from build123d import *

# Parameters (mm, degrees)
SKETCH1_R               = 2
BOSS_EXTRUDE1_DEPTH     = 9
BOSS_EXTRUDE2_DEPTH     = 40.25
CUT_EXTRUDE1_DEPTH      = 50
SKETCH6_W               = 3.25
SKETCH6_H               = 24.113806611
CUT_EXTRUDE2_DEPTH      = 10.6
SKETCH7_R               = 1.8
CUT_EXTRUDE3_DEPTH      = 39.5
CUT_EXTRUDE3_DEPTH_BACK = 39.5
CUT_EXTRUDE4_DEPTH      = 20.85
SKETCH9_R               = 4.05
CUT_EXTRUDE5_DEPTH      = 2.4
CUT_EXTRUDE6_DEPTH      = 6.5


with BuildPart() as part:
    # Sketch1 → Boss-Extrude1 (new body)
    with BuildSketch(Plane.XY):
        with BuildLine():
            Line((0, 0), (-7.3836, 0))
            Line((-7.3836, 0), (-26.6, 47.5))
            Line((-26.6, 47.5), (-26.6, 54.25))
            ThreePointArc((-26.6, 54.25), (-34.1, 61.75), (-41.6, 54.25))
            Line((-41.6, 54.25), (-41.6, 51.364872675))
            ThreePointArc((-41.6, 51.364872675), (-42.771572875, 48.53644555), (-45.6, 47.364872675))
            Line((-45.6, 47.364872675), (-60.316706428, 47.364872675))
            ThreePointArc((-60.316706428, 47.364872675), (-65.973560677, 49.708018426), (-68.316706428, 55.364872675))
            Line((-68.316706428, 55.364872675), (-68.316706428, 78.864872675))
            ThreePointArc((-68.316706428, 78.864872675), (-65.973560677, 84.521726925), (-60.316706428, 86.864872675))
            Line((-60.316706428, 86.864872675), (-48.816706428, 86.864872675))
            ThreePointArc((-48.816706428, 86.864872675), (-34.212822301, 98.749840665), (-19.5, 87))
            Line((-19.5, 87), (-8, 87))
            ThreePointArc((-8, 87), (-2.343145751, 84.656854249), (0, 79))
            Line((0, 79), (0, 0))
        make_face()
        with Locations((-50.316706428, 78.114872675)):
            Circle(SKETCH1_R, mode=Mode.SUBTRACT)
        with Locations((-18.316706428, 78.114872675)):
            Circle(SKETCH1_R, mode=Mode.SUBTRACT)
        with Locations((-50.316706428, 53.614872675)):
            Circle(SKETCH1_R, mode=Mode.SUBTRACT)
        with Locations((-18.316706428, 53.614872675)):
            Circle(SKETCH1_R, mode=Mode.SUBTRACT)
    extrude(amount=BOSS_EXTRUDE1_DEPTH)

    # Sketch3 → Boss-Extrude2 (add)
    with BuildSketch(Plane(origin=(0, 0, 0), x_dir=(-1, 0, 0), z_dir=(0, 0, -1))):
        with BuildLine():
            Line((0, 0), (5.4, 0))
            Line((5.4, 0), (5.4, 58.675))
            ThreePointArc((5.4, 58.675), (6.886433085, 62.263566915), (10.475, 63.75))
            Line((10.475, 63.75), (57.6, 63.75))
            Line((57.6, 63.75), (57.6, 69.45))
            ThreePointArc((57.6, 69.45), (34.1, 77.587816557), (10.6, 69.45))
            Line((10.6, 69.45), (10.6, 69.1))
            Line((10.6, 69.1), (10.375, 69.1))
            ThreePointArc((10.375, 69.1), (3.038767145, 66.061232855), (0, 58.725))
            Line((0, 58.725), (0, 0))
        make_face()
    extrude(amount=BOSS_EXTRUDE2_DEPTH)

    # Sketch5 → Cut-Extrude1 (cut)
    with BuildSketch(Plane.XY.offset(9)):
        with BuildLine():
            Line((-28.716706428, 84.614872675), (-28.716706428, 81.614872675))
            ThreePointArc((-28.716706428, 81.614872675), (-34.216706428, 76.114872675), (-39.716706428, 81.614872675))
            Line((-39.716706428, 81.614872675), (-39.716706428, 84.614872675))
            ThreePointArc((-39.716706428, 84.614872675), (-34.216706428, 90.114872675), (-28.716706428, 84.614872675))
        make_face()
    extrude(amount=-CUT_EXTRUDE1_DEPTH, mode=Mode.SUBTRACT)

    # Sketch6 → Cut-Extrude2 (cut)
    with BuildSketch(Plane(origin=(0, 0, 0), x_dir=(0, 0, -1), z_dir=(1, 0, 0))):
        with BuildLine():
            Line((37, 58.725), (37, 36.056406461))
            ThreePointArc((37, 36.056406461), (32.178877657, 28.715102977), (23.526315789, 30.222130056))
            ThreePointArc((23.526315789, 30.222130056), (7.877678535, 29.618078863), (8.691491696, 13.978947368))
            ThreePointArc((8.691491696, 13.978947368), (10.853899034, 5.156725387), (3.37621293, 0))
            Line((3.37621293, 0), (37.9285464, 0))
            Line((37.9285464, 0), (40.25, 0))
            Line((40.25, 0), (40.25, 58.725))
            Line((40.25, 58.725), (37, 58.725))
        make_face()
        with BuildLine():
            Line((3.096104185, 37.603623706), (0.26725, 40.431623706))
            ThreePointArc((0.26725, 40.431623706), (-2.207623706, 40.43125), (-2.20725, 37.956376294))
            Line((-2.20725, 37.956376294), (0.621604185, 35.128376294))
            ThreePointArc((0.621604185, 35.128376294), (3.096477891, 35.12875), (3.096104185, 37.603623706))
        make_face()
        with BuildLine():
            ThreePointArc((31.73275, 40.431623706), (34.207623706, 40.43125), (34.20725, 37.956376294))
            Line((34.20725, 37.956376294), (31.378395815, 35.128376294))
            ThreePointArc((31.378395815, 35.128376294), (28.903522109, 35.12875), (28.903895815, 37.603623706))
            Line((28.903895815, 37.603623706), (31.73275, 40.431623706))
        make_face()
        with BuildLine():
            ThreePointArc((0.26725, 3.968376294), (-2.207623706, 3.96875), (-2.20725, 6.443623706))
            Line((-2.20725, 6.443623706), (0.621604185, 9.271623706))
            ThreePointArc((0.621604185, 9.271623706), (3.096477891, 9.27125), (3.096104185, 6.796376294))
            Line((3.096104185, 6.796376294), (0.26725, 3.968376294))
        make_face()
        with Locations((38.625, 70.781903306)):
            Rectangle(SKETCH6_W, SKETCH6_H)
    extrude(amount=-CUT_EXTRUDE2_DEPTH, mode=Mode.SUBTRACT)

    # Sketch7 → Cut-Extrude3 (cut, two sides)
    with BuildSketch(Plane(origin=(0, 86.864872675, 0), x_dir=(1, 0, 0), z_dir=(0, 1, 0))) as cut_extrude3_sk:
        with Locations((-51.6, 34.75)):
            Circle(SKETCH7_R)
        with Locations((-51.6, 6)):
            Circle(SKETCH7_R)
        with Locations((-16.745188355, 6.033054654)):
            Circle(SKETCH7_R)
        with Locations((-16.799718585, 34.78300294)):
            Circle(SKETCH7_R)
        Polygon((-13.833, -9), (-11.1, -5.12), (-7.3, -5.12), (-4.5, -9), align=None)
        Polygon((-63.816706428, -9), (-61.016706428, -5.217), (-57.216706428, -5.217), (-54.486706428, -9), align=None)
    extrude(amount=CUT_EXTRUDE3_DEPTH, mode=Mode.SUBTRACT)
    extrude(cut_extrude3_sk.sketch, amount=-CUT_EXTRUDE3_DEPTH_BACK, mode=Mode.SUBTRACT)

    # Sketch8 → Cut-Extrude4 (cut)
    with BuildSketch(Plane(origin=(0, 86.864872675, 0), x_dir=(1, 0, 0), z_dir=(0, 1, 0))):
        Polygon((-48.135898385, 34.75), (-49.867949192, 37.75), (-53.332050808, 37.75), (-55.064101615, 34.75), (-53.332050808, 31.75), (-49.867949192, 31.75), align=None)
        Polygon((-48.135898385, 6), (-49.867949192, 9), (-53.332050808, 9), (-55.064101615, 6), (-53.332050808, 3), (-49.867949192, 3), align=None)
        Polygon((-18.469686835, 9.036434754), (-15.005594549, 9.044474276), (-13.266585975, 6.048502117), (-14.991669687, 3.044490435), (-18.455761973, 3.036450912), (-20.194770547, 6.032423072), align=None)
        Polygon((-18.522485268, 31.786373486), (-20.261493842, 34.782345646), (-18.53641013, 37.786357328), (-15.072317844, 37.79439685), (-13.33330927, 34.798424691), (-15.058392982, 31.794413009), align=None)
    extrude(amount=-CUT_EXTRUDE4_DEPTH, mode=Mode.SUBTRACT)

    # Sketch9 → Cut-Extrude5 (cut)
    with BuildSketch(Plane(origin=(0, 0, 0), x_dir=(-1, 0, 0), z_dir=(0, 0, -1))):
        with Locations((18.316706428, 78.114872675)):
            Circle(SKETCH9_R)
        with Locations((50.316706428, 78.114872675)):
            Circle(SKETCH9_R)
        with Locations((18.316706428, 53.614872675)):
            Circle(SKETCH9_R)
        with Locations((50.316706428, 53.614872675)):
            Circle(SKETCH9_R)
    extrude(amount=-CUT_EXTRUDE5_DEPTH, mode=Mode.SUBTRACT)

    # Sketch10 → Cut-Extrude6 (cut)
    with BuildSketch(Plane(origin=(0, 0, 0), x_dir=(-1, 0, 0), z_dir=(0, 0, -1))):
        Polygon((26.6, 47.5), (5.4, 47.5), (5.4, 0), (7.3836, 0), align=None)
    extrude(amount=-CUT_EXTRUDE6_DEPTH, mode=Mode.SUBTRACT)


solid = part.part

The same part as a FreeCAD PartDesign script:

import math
import FreeCAD as App
import Part
import Sketcher

V = App.Vector
Q = App.Units.Quantity


def add_polygon(sketch, points):
    """Adds a closed chain of lines whose ends are joined by coincident constraints."""
    first, n = sketch.GeometryCount, len(points)
    for a, b in zip(points, points[1:] + points[:1]):
        sketch.addGeometry(Part.LineSegment(App.Vector(*a, 0), App.Vector(*b, 0)), False)
    for i in range(n):
        sketch.addConstraint(Sketcher.Constraint("Coincident", first + i, 2, first + (i + 1) % n, 1))

doc = App.newDocument("Part")
body = doc.addObject("PartDesign::Body", "Body")

sketch1 = body.newObject("Sketcher::SketchObject", "Sketch")
sketch1.AttachmentSupport = (doc.getObject("XY_Plane"), [""])
sketch1.MapMode = "FlatFace"
sketch1.addGeometry(Part.LineSegment(V(-7.3836, 0, 0), V(0, 0, 0)), False)
sketch1.addGeometry(Part.LineSegment(V(0, 0, 0), V(0, 79, 0)), False)
sketch1.addGeometry(Part.ArcOfCircle(Part.Circle(V(-8, 79, 0), V(0, 0, 1), 8), math.radians(0), math.radians(90)), False)
sketch1.addGeometry(Part.LineSegment(V(-8, 87, 0), V(-19.5, 87, 0)), False)
sketch1.addGeometry(Part.ArcOfCircle(Part.Circle(V(-34.143685, 83.75, 0), V(0, 0, 1), 15), math.radians(12.513325), math.radians(168.014849)), False)
sketch1.addGeometry(Part.LineSegment(V(-48.816706, 86.864873, 0), V(-60.316706, 86.864873, 0)), False)
sketch1.addGeometry(Part.ArcOfCircle(Part.Circle(V(-60.316706, 78.864873, 0), V(0, 0, 1), 8), math.radians(90), math.radians(180)), False)
sketch1.addGeometry(Part.LineSegment(V(-68.316706, 78.864873, 0), V(-68.316706, 55.364873, 0)), False)
sketch1.addGeometry(Part.ArcOfCircle(Part.Circle(V(-60.316706, 55.364873, 0), V(0, 0, 1), 8), math.radians(-180), math.radians(-90)), False)
sketch1.addGeometry(Part.LineSegment(V(-60.316706, 47.364873, 0), V(-45.6, 47.364873, 0)), False)
sketch1.addGeometry(Part.ArcOfCircle(Part.Circle(V(-45.6, 51.364873, 0), V(0, 0, 1), 4), math.radians(-90), math.radians(0)), False)
sketch1.addGeometry(Part.LineSegment(V(-41.6, 51.364873, 0), V(-41.6, 54.25, 0)), False)
sketch1.addGeometry(Part.ArcOfCircle(Part.Circle(V(-34.1, 54.25, 0), V(0, 0, 1), 7.5), math.radians(0), math.radians(180)), False)
sketch1.addGeometry(Part.LineSegment(V(-26.6, 54.25, 0), V(-26.6, 47.5, 0)), False)
sketch1.addGeometry(Part.LineSegment(V(-26.6, 47.5, 0), V(-7.3836, 0, 0)), False)
sketch1.addGeometry(Part.Circle(V(-18.316706, 53.614873, 0), V(0, 0, 1), 2), False)
sketch1.addGeometry(Part.Circle(V(-50.316706, 53.614873, 0), V(0, 0, 1), 2), False)
sketch1.addGeometry(Part.Circle(V(-18.316706, 78.114873, 0), V(0, 0, 1), 2), False)
sketch1.addGeometry(Part.Circle(V(-50.316706, 78.114873, 0), V(0, 0, 1), 2), False)
sketch1.addConstraint(Sketcher.Constraint("Coincident", 0, 2, 1, 1))
sketch1.addConstraint(Sketcher.Constraint("Tangent", 1, 2, 2, 1))
sketch1.addConstraint(Sketcher.Constraint("Tangent", 2, 2, 3, 1))
sketch1.addConstraint(Sketcher.Constraint("Coincident", 3, 2, 4, 1))
sketch1.addConstraint(Sketcher.Constraint("Coincident", 4, 2, 5, 1))
sketch1.addConstraint(Sketcher.Constraint("Tangent", 5, 2, 6, 1))
sketch1.addConstraint(Sketcher.Constraint("Tangent", 6, 2, 7, 1))
sketch1.addConstraint(Sketcher.Constraint("Tangent", 7, 2, 8, 1))
sketch1.addConstraint(Sketcher.Constraint("Tangent", 8, 2, 9, 1))
sketch1.addConstraint(Sketcher.Constraint("Tangent", 9, 2, 10, 1))
sketch1.addConstraint(Sketcher.Constraint("Tangent", 10, 2, 11, 1))
sketch1.addConstraint(Sketcher.Constraint("Tangent", 11, 2, 12, 2))
sketch1.addConstraint(Sketcher.Constraint("Tangent", 12, 1, 13, 1))
sketch1.addConstraint(Sketcher.Constraint("Coincident", 13, 2, 14, 1))
sketch1.addConstraint(Sketcher.Constraint("Coincident", 14, 2, 0, 1))
sketch1.addConstraint(Sketcher.Constraint("Horizontal", 0))
sketch1.addConstraint(Sketcher.Constraint("Vertical", 1))
sketch1.addConstraint(Sketcher.Constraint("Horizontal", 3))
sketch1.addConstraint(Sketcher.Constraint("Horizontal", 5))
sketch1.addConstraint(Sketcher.Constraint("Vertical", 7))
sketch1.addConstraint(Sketcher.Constraint("Horizontal", 9))
sketch1.addConstraint(Sketcher.Constraint("Vertical", 11))
sketch1.addConstraint(Sketcher.Constraint("Vertical", 13))
sketch1.addConstraint(Sketcher.Constraint("Coincident", 0, 2, -1, 1))
sketch1.addConstraint(Sketcher.Constraint("Equal", 2, 6))
sketch1.addConstraint(Sketcher.Constraint("Equal", 6, 8))
sketch1.addConstraint(Sketcher.Constraint("Equal", 15, 16))
sketch1.addConstraint(Sketcher.Constraint("Equal", 16, 17))
sketch1.addConstraint(Sketcher.Constraint("Equal", 17, 18))
sketch1.addConstraint(Sketcher.Constraint("Horizontal", 15, 3, 16, 3))
sketch1.addConstraint(Sketcher.Constraint("Horizontal", 17, 3, 18, 3))
sketch1.addConstraint(Sketcher.Constraint("Vertical", 15, 3, 17, 3))
sketch1.addConstraint(Sketcher.Constraint("Vertical", 16, 3, 18, 3))
sketch1.addConstraint(Sketcher.Constraint("Equal", 3, 5))
sketch1.addConstraint(Sketcher.Constraint("Diameter", 15, 4.0))
sketch1.addConstraint(Sketcher.Constraint("Radius", 2, 8.0))
sketch1.addConstraint(Sketcher.Constraint("Radius", 4, 15.0))
sketch1.addConstraint(Sketcher.Constraint("Radius", 10, 4.0))
sketch1.addConstraint(Sketcher.Constraint("Radius", 12, 7.5))
sketch1.addConstraint(Sketcher.Constraint("DistanceY", 1, 1, 1, 2, 79.0))
sketch1.addConstraint(Sketcher.Constraint("DistanceX", 3, 2, 3, 1, 11.5))
sketch1.addConstraint(Sketcher.Constraint("DistanceY", 7, 2, 7, 1, 23.5))
sketch1.addConstraint(Sketcher.Constraint("DistanceX", 8, 3, 15, 3, 42.0))
sketch1.addConstraint(Sketcher.Constraint("DistanceX", 8, 3, 16, 3, 10.0))
sketch1.addConstraint(Sketcher.Constraint("DistanceY", 13, 2, 13, 1, 6.75))
sketch1.addConstraint(Sketcher.Constraint("DistanceX", 10, 3, -1, 1, 45.6))
sketch1.addConstraint(Sketcher.Constraint("DistanceY", -1, 1, 13, 2, 47.5))
sketch1.addConstraint(Sketcher.Constraint("DistanceY", 12, 3, 4, 3, 29.5))
sketch1.addConstraint(Sketcher.Constraint("DistanceY", 15, 3, 17, 3, 24.5))
sketch1.addConstraint(Sketcher.Constraint("DistanceY", 10, 3, 15, 3, 2.25))
sketch1.addConstraint(Sketcher.Constraint("DistanceX", 0, 1, 0, 2, 7.3836))
sketch1.addConstraint(Sketcher.Constraint("DistanceX", 9, 1, 9, 2, 14.716706))
pad1 = body.newObject("PartDesign::Pad", "Pad")
pad1.Profile = sketch1
pad1.Length = 9

sketch2 = body.newObject("Sketcher::SketchObject", "Sketch001")
sketch2.AttachmentSupport = (doc.getObject("XY_Plane"), [""])
sketch2.MapMode = "FlatFace"
sketch2.addGeometry(Part.LineSegment(V(0, 0, 0), V(-5.4, 0, 0)), False)
sketch2.addGeometry(Part.LineSegment(V(-5.4, 0, 0), V(-5.4, 58.675, 0)), False)
sketch2.addGeometry(Part.ArcOfCircle(Part.Circle(V(-10.475, 58.675, 0), V(0, 0, 1), 5.075), math.radians(0), math.radians(90)), False)
sketch2.addGeometry(Part.LineSegment(V(-10.475, 63.75, 0), V(-57.6, 63.75, 0)), False)
sketch2.addGeometry(Part.LineSegment(V(-57.6, 63.75, 0), V(-57.6, 69.45, 0)), False)
sketch2.addGeometry(Part.ArcOfCircle(Part.Circle(V(-34.1, 39.587817, 0), V(0, 0, 1), 38), math.radians(51.799077), math.radians(128.200923)), False)
sketch2.addGeometry(Part.LineSegment(V(-10.6, 69.45, 0), V(-10.6, 69.1, 0)), False)
sketch2.addGeometry(Part.LineSegment(V(-10.6, 69.1, 0), V(-10.375, 69.1, 0)), False)
sketch2.addGeometry(Part.ArcOfCircle(Part.Circle(V(-10.375, 58.725, 0), V(0, 0, 1), 10.375), math.radians(0), math.radians(90)), False)
sketch2.addGeometry(Part.LineSegment(V(0, 58.725, 0), V(0, 0, 0)), False)
sketch2.addConstraint(Sketcher.Constraint("Coincident", 0, 2, 1, 1))
sketch2.addConstraint(Sketcher.Constraint("Tangent", 1, 2, 2, 1))
sketch2.addConstraint(Sketcher.Constraint("Tangent", 2, 2, 3, 1))
sketch2.addConstraint(Sketcher.Constraint("Coincident", 3, 2, 4, 1))
sketch2.addConstraint(Sketcher.Constraint("Coincident", 4, 2, 5, 2))
sketch2.addConstraint(Sketcher.Constraint("Coincident", 5, 1, 6, 1))
sketch2.addConstraint(Sketcher.Constraint("Coincident", 6, 2, 7, 1))
sketch2.addConstraint(Sketcher.Constraint("Tangent", 7, 2, 8, 2))
sketch2.addConstraint(Sketcher.Constraint("Tangent", 8, 1, 9, 1))
sketch2.addConstraint(Sketcher.Constraint("Coincident", 9, 2, 0, 1))
sketch2.addConstraint(Sketcher.Constraint("Horizontal", 0))
sketch2.addConstraint(Sketcher.Constraint("Vertical", 1))
sketch2.addConstraint(Sketcher.Constraint("Horizontal", 3))
sketch2.addConstraint(Sketcher.Constraint("Vertical", 4))
sketch2.addConstraint(Sketcher.Constraint("Vertical", 6))
sketch2.addConstraint(Sketcher.Constraint("Horizontal", 7))
sketch2.addConstraint(Sketcher.Constraint("Vertical", 9))
sketch2.addConstraint(Sketcher.Constraint("Coincident", 9, 2, -1, 1))
sketch2.addConstraint(Sketcher.Constraint("Horizontal", 4, 2, 5, 1))
sketch2.addConstraint(Sketcher.Constraint("Radius", 5, 38.0))
sketch2.addConstraint(Sketcher.Constraint("DistanceX", 0, 2, 0, 1, 5.4))
sketch2.addConstraint(Sketcher.Constraint("DistanceY", 4, 1, 4, 2, 5.7))
sketch2.addConstraint(Sketcher.Constraint("Radius", 2, 5.075))
sketch2.addConstraint(Sketcher.Constraint("Radius", 8, 10.375))
sketch2.addConstraint(Sketcher.Constraint("DistanceY", 6, 2, 6, 1, 0.35))
sketch2.addConstraint(Sketcher.Constraint("DistanceX", 5, 3, -1, 1, 34.1))
sketch2.addConstraint(Sketcher.Constraint("DistanceX", 3, 2, -1, 1, 57.6))
sketch2.addConstraint(Sketcher.Constraint("DistanceY", -1, 1, 6, 2, 69.1))
pad2 = body.newObject("PartDesign::Pad", "Pad001")
pad2.Profile = sketch2
pad2.Length = 40.25
pad2.Reversed = True

sketch3 = body.newObject("Sketcher::SketchObject", "Sketch002")
sketch3.AttachmentSupport = (doc.getObject("XY_Plane"), [""])
sketch3.MapMode = "FlatFace"
sketch3.AttachmentOffset = App.Placement(V(0, 0, 9), App.Rotation())
sketch3.addGeometry(Part.LineSegment(V(-28.716706, 81.614873, 0), V(-28.716706, 84.614873, 0)), False)
sketch3.addGeometry(Part.ArcOfCircle(Part.Circle(V(-34.216706, 84.614873, 0), V(0, 0, 1), 5.5), math.radians(0), math.radians(180)), False)
sketch3.addGeometry(Part.LineSegment(V(-39.716706, 84.614873, 0), V(-39.716706, 81.614873, 0)), False)
sketch3.addGeometry(Part.ArcOfCircle(Part.Circle(V(-34.216706, 81.614873, 0), V(0, 0, 1), 5.5), math.radians(180), math.radians(360)), False)
sketch3.addConstraint(Sketcher.Constraint("Tangent", 0, 2, 1, 1))
sketch3.addConstraint(Sketcher.Constraint("Tangent", 1, 2, 2, 1))
sketch3.addConstraint(Sketcher.Constraint("Tangent", 2, 2, 3, 1))
sketch3.addConstraint(Sketcher.Constraint("Tangent", 3, 2, 0, 1))
sketch3.addConstraint(Sketcher.Constraint("Vertical", 0))
sketch3.addConstraint(Sketcher.Constraint("Vertical", 2))
sketch3.addConstraint(Sketcher.Constraint("Radius", 1, 5.5))
sketch3.addConstraint(Sketcher.Constraint("DistanceY", 0, 1, 0, 2, 3.0))
sketch3.addConstraint(Sketcher.Constraint("DistanceX", 1, 3, -1, 1, 34.216706))
sketch3.addConstraint(Sketcher.Constraint("DistanceY", -1, 1, 1, 3, 84.614873))
pocket1 = body.newObject("PartDesign::Pocket", "Pocket")
pocket1.Profile = sketch3
pocket1.Length = 50

sketch4 = body.newObject("Sketcher::SketchObject", "Sketch003")
sketch4.AttachmentSupport = (doc.getObject("YZ_Plane"), [""])
sketch4.MapMode = "FlatFace"
sketch4.addGeometry(Part.ArcOfCircle(Part.Circle(V(36.056406, -29, 0), V(0, 0, 1), 8), math.radians(136.826449), math.radians(270)), False)
sketch4.addGeometry(Part.ArcOfCircle(Part.Circle(V(22.2, -16, 0), V(0, 0, 1), 11), math.radians(-43.173551), math.radians(138.362934)), False)
sketch4.addGeometry(Part.ArcOfCircle(Part.Circle(V(8, -3.376213, 0), V(0, 0, 1), 8), math.radians(180), math.radians(318.362934)), False)
sketch4.addGeometry(Part.LineSegment(V(0, -3.376213, 0), V(0, -40.25, 0)), False)
sketch4.addGeometry(Part.LineSegment(V(0, -40.25, 0), V(82.838807, -40.25, 0)), False)
sketch4.addGeometry(Part.LineSegment(V(82.838807, -40.25, 0), V(82.838807, -37, 0)), False)
sketch4.addGeometry(Part.LineSegment(V(82.838807, -37, 0), V(36.056406, -37, 0)), False)
sketch4.addGeometry(Part.LineSegment(V(37.603624, -3.096104, 0), V(40.431624, -0.26725, 0)), False)
sketch4.addGeometry(Part.ArcOfCircle(Part.Circle(V(39.194, 0.97, 0), V(0, 0, 1), 1.75), math.radians(-44.991348), math.radians(135.008652)), False)
sketch4.addGeometry(Part.LineSegment(V(37.956376, 2.20725, 0), V(35.128376, -0.621604, 0)), False)
sketch4.addGeometry(Part.ArcOfCircle(Part.Circle(V(36.366, -1.858854, 0), V(0, 0, 1), 1.75), math.radians(135.008652), math.radians(315.008652)), False)
sketch4.addGeometry(Part.ArcOfCircle(Part.Circle(V(39.194, -32.97, 0), V(0, 0, 1), 1.75), math.radians(-135.008652), math.radians(44.991348)), False)
sketch4.addGeometry(Part.LineSegment(V(40.431624, -31.73275, 0), V(37.603624, -28.903896, 0)), False)
sketch4.addGeometry(Part.ArcOfCircle(Part.Circle(V(36.366, -30.141146, 0), V(0, 0, 1), 1.75), math.radians(44.991348), math.radians(224.991348)), False)
sketch4.addGeometry(Part.LineSegment(V(35.128376, -31.378396, 0), V(37.956376, -34.20725, 0)), False)
sketch4.addGeometry(Part.ArcOfCircle(Part.Circle(V(5.206, 0.97, 0), V(0, 0, 1), 1.75), math.radians(44.991348), math.radians(224.991348)), False)
sketch4.addGeometry(Part.LineSegment(V(3.968376, -0.26725, 0), V(6.796376, -3.096104, 0)), False)
sketch4.addGeometry(Part.ArcOfCircle(Part.Circle(V(8.034, -1.858854, 0), V(0, 0, 1), 1.75), math.radians(-135.008652), math.radians(44.991348)), False)
sketch4.addGeometry(Part.LineSegment(V(9.271624, -0.621604, 0), V(6.443624, 2.20725, 0)), False)
sketch4.addConstraint(Sketcher.Constraint("Tangent", 0, 1, 1, 1))
sketch4.addConstraint(Sketcher.Constraint("Tangent", 1, 2, 2, 2))
sketch4.addConstraint(Sketcher.Constraint("Tangent", 2, 1, 3, 1))
sketch4.addConstraint(Sketcher.Constraint("Coincident", 3, 2, 4, 1))
sketch4.addConstraint(Sketcher.Constraint("Coincident", 4, 2, 5, 1))
sketch4.addConstraint(Sketcher.Constraint("Coincident", 5, 2, 6, 1))
sketch4.addConstraint(Sketcher.Constraint("Tangent", 6, 2, 0, 2))
sketch4.addConstraint(Sketcher.Constraint("Tangent", 7, 2, 8, 1))
sketch4.addConstraint(Sketcher.Constraint("Tangent", 8, 2, 9, 1))
sketch4.addConstraint(Sketcher.Constraint("Tangent", 9, 2, 10, 1))
sketch4.addConstraint(Sketcher.Constraint("Tangent", 10, 2, 7, 1))
sketch4.addConstraint(Sketcher.Constraint("Tangent", 11, 2, 12, 1))
sketch4.addConstraint(Sketcher.Constraint("Tangent", 12, 2, 13, 1))
sketch4.addConstraint(Sketcher.Constraint("Tangent", 13, 2, 14, 1))
sketch4.addConstraint(Sketcher.Constraint("Tangent", 14, 2, 11, 1))
sketch4.addConstraint(Sketcher.Constraint("Tangent", 15, 2, 16, 1))
sketch4.addConstraint(Sketcher.Constraint("Tangent", 16, 2, 17, 1))
sketch4.addConstraint(Sketcher.Constraint("Tangent", 17, 2, 18, 1))
sketch4.addConstraint(Sketcher.Constraint("Tangent", 18, 2, 15, 1))
sketch4.addConstraint(Sketcher.Constraint("Vertical", 3))
sketch4.addConstraint(Sketcher.Constraint("Horizontal", 4))
sketch4.addConstraint(Sketcher.Constraint("Vertical", 5))
sketch4.addConstraint(Sketcher.Constraint("Horizontal", 6))
sketch4.addConstraint(Sketcher.Constraint("Equal", 0, 2))
sketch4.addConstraint(Sketcher.Constraint("Equal", 8, 10))
sketch4.addConstraint(Sketcher.Constraint("Equal", 10, 11))
sketch4.addConstraint(Sketcher.Constraint("Equal", 11, 13))
sketch4.addConstraint(Sketcher.Constraint("Equal", 13, 15))
sketch4.addConstraint(Sketcher.Constraint("Equal", 15, 17))
sketch4.addConstraint(Sketcher.Constraint("PointOnObject", 2, 1, -2))
sketch4.addConstraint(Sketcher.Constraint("Parallel", 14, 16))
sketch4.addConstraint(Sketcher.Constraint("Horizontal", 8, 3, 15, 3))
sketch4.addConstraint(Sketcher.Constraint("Horizontal", 10, 3, 17, 3))
sketch4.addConstraint(Sketcher.Constraint("Horizontal", 7, 2, 15, 2))
sketch4.addConstraint(Sketcher.Constraint("Vertical", 8, 3, 11, 3))
sketch4.addConstraint(Sketcher.Constraint("Vertical", 10, 3, 13, 3))
sketch4.addConstraint(Sketcher.Constraint("Radius", 0, 8.0))
sketch4.addConstraint(Sketcher.Constraint("Radius", 1, 11.0))
sketch4.addConstraint(Sketcher.Constraint("Radius", 8, 1.75))
sketch4.addConstraint(Sketcher.Constraint("Distance", 7, 4.0))
sketch4.addConstraint(Sketcher.Constraint("DistanceY", 0, 3, -1, 1, 29.0))
sketch4.addConstraint(Sketcher.Constraint("DistanceY", 1, 3, -1, 1, 16.0))
sketch4.addConstraint(Sketcher.Constraint("DistanceY", 5, 1, 5, 2, 3.25))
sketch4.addConstraint(Sketcher.Constraint("DistanceX", -1, 1, 1, 3, 22.2))
sketch4.addConstraint(Sketcher.Constraint("DistanceY", -1, 1, 8, 3, 0.97))
sketch4.addConstraint(Sketcher.Constraint("DistanceY", 11, 3, -1, 1, 32.97))
sketch4.addConstraint(Sketcher.Constraint("DistanceX", 15, 3, 10, 3, 31.16))
sketch4.addConstraint(Sketcher.Constraint("DistanceX", 6, 2, 6, 1, 46.7824))
sketch4.addConstraint(Sketcher.Constraint("DistanceX", -1, 1, 8, 3, 39.194))
sketch4.addConstraint(Sketcher.Constraint("DistanceX", -1, 1, 10, 3, 36.366))
pocket2 = body.newObject("PartDesign::Pocket", "Pocket001")
pocket2.Profile = sketch4
pocket2.Length = 10.6

sketch5 = body.newObject("Sketcher::SketchObject", "Sketch004")
sketch5.AttachmentSupport = (doc.getObject("XZ_Plane"), [""])
sketch5.MapMode = "FlatFace"
sketch5.AttachmentOffset = App.Placement(V(0, 0, -86.864873), App.Rotation())
sketch5.addGeometry(Part.Circle(V(-51.6, -34.75, 0), V(0, 0, 1), 1.8), False)
sketch5.addGeometry(Part.Circle(V(-51.6, -6, 0), V(0, 0, 1), 1.8), False)
sketch5.addGeometry(Part.Circle(V(-16.745188, -6.033055, 0), V(0, 0, 1), 1.8), False)
sketch5.addGeometry(Part.Circle(V(-16.799719, -34.783003, 0), V(0, 0, 1), 1.8), False)
add_polygon(sketch5, [(-11.1, 5.12), (-13.833, 9), (-4.5, 9), (-7.3, 5.12)])
add_polygon(sketch5, [(-61.016706, 5.217), (-63.816706, 9), (-54.486706, 9), (-57.216706, 5.217)])
sketch5.addConstraint(Sketcher.Constraint("Horizontal", 5))
sketch5.addConstraint(Sketcher.Constraint("Horizontal", 7))
sketch5.addConstraint(Sketcher.Constraint("Horizontal", 9))
sketch5.addConstraint(Sketcher.Constraint("Horizontal", 11))
sketch5.addConstraint(Sketcher.Constraint("Equal", 0, 1))
sketch5.addConstraint(Sketcher.Constraint("Equal", 1, 2))
sketch5.addConstraint(Sketcher.Constraint("Equal", 2, 3))
sketch5.addConstraint(Sketcher.Constraint("Parallel", 6, 10))
sketch5.addConstraint(Sketcher.Constraint("Horizontal", 5, 2, 8, 2))
sketch5.addConstraint(Sketcher.Constraint("Vertical", 0, 3, 1, 3))
sketch5.addConstraint(Sketcher.Constraint("Equal", 7, 11))
sketch5.addConstraint(Sketcher.Constraint("Diameter", 0, 3.6))
sketch5.addConstraint(Sketcher.Constraint("DistanceX", 7, 2, 7, 1, 3.8))
sketch5.addConstraint(Sketcher.Constraint("DistanceY", 1, 3, -1, 1, 6.0))
sketch5.addConstraint(Sketcher.Constraint("DistanceY", -1, 1, 4, 2, 9.0))
sketch5.addConstraint(Sketcher.Constraint("DistanceX", 9, 1, 9, 2, 9.33))
sketch5.addConstraint(Sketcher.Constraint("DistanceX", 0, 3, -1, 1, 51.6))
sketch5.addConstraint(Sketcher.Constraint("DistanceX", 5, 2, -1, 1, 4.5))
sketch5.addConstraint(Sketcher.Constraint("DistanceX", 6, 2, -1, 1, 7.3))
sketch5.addConstraint(Sketcher.Constraint("DistanceX", 8, 2, 10, 2, 6.6))
sketch5.addConstraint(Sketcher.Constraint("DistanceX", 5, 1, 5, 2, 9.333))
sketch5.addConstraint(Sketcher.Constraint("DistanceY", 0, 3, -1, 1, 34.75))
sketch5.addConstraint(Sketcher.Constraint("DistanceY", -1, 1, 6, 2, 5.12))
sketch5.addConstraint(Sketcher.Constraint("DistanceX", 2, 3, -1, 1, 16.745188))
sketch5.addConstraint(Sketcher.Constraint("DistanceX", 3, 3, -1, 1, 16.799719))
sketch5.addConstraint(Sketcher.Constraint("DistanceY", 3, 3, 2, 3, 28.749948))
sketch5.addConstraint(Sketcher.Constraint("DistanceX", 8, 2, 2, 3, 47.071518))
sketch5.addConstraint(Sketcher.Constraint("DistanceY", 2, 3, -1, 1, 6.033055))
pocket3 = body.newObject("PartDesign::Pocket", "Pocket002")
pocket3.Profile = sketch5
pocket3.Type = "TwoLengths"
pocket3.Length = 39.5
pocket3.Length2 = 39.5

sketch6 = body.newObject("Sketcher::SketchObject", "Sketch005")
sketch6.AttachmentSupport = (doc.getObject("XZ_Plane"), [""])
sketch6.MapMode = "FlatFace"
sketch6.AttachmentOffset = App.Placement(V(0, 0, -86.864873), App.Rotation())
add_polygon(sketch6, [(-48.135898, -34.75), (-49.867949, -37.75), (-53.332051, -37.75), (-55.064102, -34.75), (-53.332051, -31.75), (-49.867949, -31.75)])
add_polygon(sketch6, [(-48.135898, -6), (-49.867949, -9), (-53.332051, -9), (-55.064102, -6), (-53.332051, -3), (-49.867949, -3)])
add_polygon(sketch6, [(-15.005595, -9.044474), (-18.469687, -9.036435), (-20.194771, -6.032423), (-18.455762, -3.036451), (-14.99167, -3.04449), (-13.266586, -6.048502)])
add_polygon(sketch6, [(-20.261494, -34.782346), (-18.522485, -31.786373), (-15.058393, -31.794413), (-13.333309, -34.798425), (-15.072318, -37.794397), (-18.53641, -37.786357)])
sketch6.addConstraint(Sketcher.Constraint("Horizontal", 1))
sketch6.addConstraint(Sketcher.Constraint("Horizontal", 4))
sketch6.addConstraint(Sketcher.Constraint("Horizontal", 7))
sketch6.addConstraint(Sketcher.Constraint("Horizontal", 10))
sketch6.addConstraint(Sketcher.Constraint("Parallel", 0, 3))
sketch6.addConstraint(Sketcher.Constraint("Parallel", 2, 5))
sketch6.addConstraint(Sketcher.Constraint("Parallel", 3, 6))
sketch6.addConstraint(Sketcher.Constraint("Parallel", 5, 8))
sketch6.addConstraint(Sketcher.Constraint("Parallel", 6, 9))
sketch6.addConstraint(Sketcher.Constraint("Parallel", 8, 11))
sketch6.addConstraint(Sketcher.Constraint("Parallel", 12, 15))
sketch6.addConstraint(Sketcher.Constraint("Parallel", 13, 16))
sketch6.addConstraint(Sketcher.Constraint("Parallel", 14, 17))
sketch6.addConstraint(Sketcher.Constraint("Parallel", 17, 18))
sketch6.addConstraint(Sketcher.Constraint("Parallel", 15, 19))
sketch6.addConstraint(Sketcher.Constraint("Parallel", 16, 20))
sketch6.addConstraint(Sketcher.Constraint("Parallel", 18, 21))
sketch6.addConstraint(Sketcher.Constraint("Parallel", 19, 22))
sketch6.addConstraint(Sketcher.Constraint("Parallel", 20, 23))
sketch6.addConstraint(Sketcher.Constraint("Horizontal", 2, 2, 5, 2))
sketch6.addConstraint(Sketcher.Constraint("Horizontal", 8, 2, 11, 2))
sketch6.addConstraint(Sketcher.Constraint("Vertical", 1, 2, 3, 2))
sketch6.addConstraint(Sketcher.Constraint("Vertical", 0, 2, 4, 2))
sketch6.addConstraint(Sketcher.Constraint("Vertical", 4, 2, 6, 2))
sketch6.addConstraint(Sketcher.Constraint("Vertical", 3, 2, 7, 2))
sketch6.addConstraint(Sketcher.Constraint("Vertical", 2, 2, 8, 2))
sketch6.addConstraint(Sketcher.Constraint("Vertical", 7, 2, 9, 2))
sketch6.addConstraint(Sketcher.Constraint("Equal", 11, 12))
sketch6.addConstraint(Sketcher.Constraint("Equal", 12, 13))
sketch6.addConstraint(Sketcher.Constraint("Equal", 13, 14))
sketch6.addConstraint(Sketcher.Constraint("Equal", 14, 15))
sketch6.addConstraint(Sketcher.Constraint("Equal", 17, 18))
sketch6.addConstraint(Sketcher.Constraint("Equal", 18, 19))
sketch6.addConstraint(Sketcher.Constraint("Equal", 19, 20))
sketch6.addConstraint(Sketcher.Constraint("Equal", 20, 21))
sketch6.addConstraint(Sketcher.Constraint("Angle", 0, Q("-120 deg")))
sketch6.addConstraint(Sketcher.Constraint("DistanceY", 6, 2, -1, 1, 9.0))
sketch6.addConstraint(Sketcher.Constraint("DistanceY", 8, 2, -1, 1, 6.0))
sketch6.addConstraint(Sketcher.Constraint("DistanceY", 0, 2, -1, 1, 37.75))
sketch6.addConstraint(Sketcher.Constraint("DistanceX", 1, 2, 1, 1, 3.464102))
sketch6.addConstraint(Sketcher.Constraint("DistanceX", 2, 2, -1, 1, 55.064102))
sketch6.addConstraint(Sketcher.Constraint("DistanceX", 13, 2, 15, 2, 5.203101))
sketch6.addConstraint(Sketcher.Constraint("DistanceX", 18, 2, 12, 2, 0.052798))
sketch6.addConstraint(Sketcher.Constraint("DistanceY", 18, 2, 17, 2, 22.741899))
sketch6.addConstraint(Sketcher.Constraint("DistanceX", 13, 2, -1, 1, 20.194771))
sketch6.addConstraint(Sketcher.Constraint("DistanceY", 14, 2, -1, 1, 3.036451))
sketch6.addConstraint(Sketcher.Constraint("DistanceY", 15, 2, -1, 1, 3.04449))
sketch6.addConstraint(Sketcher.Constraint("DistanceX", 20, 2, -1, 1, 13.333309))
pocket4 = body.newObject("PartDesign::Pocket", "Pocket003")
pocket4.Profile = sketch6
pocket4.Length = 20.85
pocket4.Reversed = True

sketch7 = body.newObject("Sketcher::SketchObject", "Sketch006")
sketch7.AttachmentSupport = (doc.getObject("XY_Plane"), [""])
sketch7.MapMode = "FlatFace"
sketch7.addGeometry(Part.Circle(V(-18.316706, 78.114873, 0), V(0, 0, 1), 4.05), False)
sketch7.addGeometry(Part.Circle(V(-50.316706, 78.114873, 0), V(0, 0, 1), 4.05), False)
sketch7.addGeometry(Part.Circle(V(-18.316706, 53.614873, 0), V(0, 0, 1), 4.05), False)
sketch7.addGeometry(Part.Circle(V(-50.316706, 53.614873, 0), V(0, 0, 1), 4.05), False)
sketch7.addConstraint(Sketcher.Constraint("Equal", 0, 1))
sketch7.addConstraint(Sketcher.Constraint("Equal", 1, 2))
sketch7.addConstraint(Sketcher.Constraint("Equal", 2, 3))
sketch7.addConstraint(Sketcher.Constraint("Horizontal", 0, 3, 1, 3))
sketch7.addConstraint(Sketcher.Constraint("Horizontal", 2, 3, 3, 3))
sketch7.addConstraint(Sketcher.Constraint("Vertical", 0, 3, 2, 3))
sketch7.addConstraint(Sketcher.Constraint("Vertical", 1, 3, 3, 3))
sketch7.addConstraint(Sketcher.Constraint("Diameter", 0, 8.1))
sketch7.addConstraint(Sketcher.Constraint("DistanceX", 1, 3, 0, 3, 32.0))
sketch7.addConstraint(Sketcher.Constraint("DistanceY", 2, 3, 0, 3, 24.5))
sketch7.addConstraint(Sketcher.Constraint("DistanceX", 0, 3, -1, 1, 18.316706))
sketch7.addConstraint(Sketcher.Constraint("DistanceY", -1, 1, 0, 3, 78.114873))
pocket5 = body.newObject("PartDesign::Pocket", "Pocket004")
pocket5.Profile = sketch7
pocket5.Length = 2.4
pocket5.Reversed = True

sketch8 = body.newObject("Sketcher::SketchObject", "Sketch007")
sketch8.AttachmentSupport = (doc.getObject("XY_Plane"), [""])
sketch8.MapMode = "FlatFace"
add_polygon(sketch8, [(-26.6, 47.5), (-5.4, 47.5), (-5.4, 0), (-7.3836, 0)])
sketch8.addConstraint(Sketcher.Constraint("Horizontal", 0))
sketch8.addConstraint(Sketcher.Constraint("Vertical", 1))
sketch8.addConstraint(Sketcher.Constraint("Horizontal", 2))
sketch8.addConstraint(Sketcher.Constraint("PointOnObject", 1, 2, -1))
sketch8.addConstraint(Sketcher.Constraint("DistanceX", 0, 1, 0, 2, 21.2))
sketch8.addConstraint(Sketcher.Constraint("DistanceY", 1, 2, 1, 1, 47.5))
sketch8.addConstraint(Sketcher.Constraint("DistanceX", 0, 2, -1, 1, 5.4))
sketch8.addConstraint(Sketcher.Constraint("DistanceX", 2, 2, 2, 1, 1.9836))
pocket6 = body.newObject("PartDesign::Pocket", "Pocket005")
pocket6.Profile = sketch8
pocket6.Length = 6.5
pocket6.Reversed = True

doc.recompute()
